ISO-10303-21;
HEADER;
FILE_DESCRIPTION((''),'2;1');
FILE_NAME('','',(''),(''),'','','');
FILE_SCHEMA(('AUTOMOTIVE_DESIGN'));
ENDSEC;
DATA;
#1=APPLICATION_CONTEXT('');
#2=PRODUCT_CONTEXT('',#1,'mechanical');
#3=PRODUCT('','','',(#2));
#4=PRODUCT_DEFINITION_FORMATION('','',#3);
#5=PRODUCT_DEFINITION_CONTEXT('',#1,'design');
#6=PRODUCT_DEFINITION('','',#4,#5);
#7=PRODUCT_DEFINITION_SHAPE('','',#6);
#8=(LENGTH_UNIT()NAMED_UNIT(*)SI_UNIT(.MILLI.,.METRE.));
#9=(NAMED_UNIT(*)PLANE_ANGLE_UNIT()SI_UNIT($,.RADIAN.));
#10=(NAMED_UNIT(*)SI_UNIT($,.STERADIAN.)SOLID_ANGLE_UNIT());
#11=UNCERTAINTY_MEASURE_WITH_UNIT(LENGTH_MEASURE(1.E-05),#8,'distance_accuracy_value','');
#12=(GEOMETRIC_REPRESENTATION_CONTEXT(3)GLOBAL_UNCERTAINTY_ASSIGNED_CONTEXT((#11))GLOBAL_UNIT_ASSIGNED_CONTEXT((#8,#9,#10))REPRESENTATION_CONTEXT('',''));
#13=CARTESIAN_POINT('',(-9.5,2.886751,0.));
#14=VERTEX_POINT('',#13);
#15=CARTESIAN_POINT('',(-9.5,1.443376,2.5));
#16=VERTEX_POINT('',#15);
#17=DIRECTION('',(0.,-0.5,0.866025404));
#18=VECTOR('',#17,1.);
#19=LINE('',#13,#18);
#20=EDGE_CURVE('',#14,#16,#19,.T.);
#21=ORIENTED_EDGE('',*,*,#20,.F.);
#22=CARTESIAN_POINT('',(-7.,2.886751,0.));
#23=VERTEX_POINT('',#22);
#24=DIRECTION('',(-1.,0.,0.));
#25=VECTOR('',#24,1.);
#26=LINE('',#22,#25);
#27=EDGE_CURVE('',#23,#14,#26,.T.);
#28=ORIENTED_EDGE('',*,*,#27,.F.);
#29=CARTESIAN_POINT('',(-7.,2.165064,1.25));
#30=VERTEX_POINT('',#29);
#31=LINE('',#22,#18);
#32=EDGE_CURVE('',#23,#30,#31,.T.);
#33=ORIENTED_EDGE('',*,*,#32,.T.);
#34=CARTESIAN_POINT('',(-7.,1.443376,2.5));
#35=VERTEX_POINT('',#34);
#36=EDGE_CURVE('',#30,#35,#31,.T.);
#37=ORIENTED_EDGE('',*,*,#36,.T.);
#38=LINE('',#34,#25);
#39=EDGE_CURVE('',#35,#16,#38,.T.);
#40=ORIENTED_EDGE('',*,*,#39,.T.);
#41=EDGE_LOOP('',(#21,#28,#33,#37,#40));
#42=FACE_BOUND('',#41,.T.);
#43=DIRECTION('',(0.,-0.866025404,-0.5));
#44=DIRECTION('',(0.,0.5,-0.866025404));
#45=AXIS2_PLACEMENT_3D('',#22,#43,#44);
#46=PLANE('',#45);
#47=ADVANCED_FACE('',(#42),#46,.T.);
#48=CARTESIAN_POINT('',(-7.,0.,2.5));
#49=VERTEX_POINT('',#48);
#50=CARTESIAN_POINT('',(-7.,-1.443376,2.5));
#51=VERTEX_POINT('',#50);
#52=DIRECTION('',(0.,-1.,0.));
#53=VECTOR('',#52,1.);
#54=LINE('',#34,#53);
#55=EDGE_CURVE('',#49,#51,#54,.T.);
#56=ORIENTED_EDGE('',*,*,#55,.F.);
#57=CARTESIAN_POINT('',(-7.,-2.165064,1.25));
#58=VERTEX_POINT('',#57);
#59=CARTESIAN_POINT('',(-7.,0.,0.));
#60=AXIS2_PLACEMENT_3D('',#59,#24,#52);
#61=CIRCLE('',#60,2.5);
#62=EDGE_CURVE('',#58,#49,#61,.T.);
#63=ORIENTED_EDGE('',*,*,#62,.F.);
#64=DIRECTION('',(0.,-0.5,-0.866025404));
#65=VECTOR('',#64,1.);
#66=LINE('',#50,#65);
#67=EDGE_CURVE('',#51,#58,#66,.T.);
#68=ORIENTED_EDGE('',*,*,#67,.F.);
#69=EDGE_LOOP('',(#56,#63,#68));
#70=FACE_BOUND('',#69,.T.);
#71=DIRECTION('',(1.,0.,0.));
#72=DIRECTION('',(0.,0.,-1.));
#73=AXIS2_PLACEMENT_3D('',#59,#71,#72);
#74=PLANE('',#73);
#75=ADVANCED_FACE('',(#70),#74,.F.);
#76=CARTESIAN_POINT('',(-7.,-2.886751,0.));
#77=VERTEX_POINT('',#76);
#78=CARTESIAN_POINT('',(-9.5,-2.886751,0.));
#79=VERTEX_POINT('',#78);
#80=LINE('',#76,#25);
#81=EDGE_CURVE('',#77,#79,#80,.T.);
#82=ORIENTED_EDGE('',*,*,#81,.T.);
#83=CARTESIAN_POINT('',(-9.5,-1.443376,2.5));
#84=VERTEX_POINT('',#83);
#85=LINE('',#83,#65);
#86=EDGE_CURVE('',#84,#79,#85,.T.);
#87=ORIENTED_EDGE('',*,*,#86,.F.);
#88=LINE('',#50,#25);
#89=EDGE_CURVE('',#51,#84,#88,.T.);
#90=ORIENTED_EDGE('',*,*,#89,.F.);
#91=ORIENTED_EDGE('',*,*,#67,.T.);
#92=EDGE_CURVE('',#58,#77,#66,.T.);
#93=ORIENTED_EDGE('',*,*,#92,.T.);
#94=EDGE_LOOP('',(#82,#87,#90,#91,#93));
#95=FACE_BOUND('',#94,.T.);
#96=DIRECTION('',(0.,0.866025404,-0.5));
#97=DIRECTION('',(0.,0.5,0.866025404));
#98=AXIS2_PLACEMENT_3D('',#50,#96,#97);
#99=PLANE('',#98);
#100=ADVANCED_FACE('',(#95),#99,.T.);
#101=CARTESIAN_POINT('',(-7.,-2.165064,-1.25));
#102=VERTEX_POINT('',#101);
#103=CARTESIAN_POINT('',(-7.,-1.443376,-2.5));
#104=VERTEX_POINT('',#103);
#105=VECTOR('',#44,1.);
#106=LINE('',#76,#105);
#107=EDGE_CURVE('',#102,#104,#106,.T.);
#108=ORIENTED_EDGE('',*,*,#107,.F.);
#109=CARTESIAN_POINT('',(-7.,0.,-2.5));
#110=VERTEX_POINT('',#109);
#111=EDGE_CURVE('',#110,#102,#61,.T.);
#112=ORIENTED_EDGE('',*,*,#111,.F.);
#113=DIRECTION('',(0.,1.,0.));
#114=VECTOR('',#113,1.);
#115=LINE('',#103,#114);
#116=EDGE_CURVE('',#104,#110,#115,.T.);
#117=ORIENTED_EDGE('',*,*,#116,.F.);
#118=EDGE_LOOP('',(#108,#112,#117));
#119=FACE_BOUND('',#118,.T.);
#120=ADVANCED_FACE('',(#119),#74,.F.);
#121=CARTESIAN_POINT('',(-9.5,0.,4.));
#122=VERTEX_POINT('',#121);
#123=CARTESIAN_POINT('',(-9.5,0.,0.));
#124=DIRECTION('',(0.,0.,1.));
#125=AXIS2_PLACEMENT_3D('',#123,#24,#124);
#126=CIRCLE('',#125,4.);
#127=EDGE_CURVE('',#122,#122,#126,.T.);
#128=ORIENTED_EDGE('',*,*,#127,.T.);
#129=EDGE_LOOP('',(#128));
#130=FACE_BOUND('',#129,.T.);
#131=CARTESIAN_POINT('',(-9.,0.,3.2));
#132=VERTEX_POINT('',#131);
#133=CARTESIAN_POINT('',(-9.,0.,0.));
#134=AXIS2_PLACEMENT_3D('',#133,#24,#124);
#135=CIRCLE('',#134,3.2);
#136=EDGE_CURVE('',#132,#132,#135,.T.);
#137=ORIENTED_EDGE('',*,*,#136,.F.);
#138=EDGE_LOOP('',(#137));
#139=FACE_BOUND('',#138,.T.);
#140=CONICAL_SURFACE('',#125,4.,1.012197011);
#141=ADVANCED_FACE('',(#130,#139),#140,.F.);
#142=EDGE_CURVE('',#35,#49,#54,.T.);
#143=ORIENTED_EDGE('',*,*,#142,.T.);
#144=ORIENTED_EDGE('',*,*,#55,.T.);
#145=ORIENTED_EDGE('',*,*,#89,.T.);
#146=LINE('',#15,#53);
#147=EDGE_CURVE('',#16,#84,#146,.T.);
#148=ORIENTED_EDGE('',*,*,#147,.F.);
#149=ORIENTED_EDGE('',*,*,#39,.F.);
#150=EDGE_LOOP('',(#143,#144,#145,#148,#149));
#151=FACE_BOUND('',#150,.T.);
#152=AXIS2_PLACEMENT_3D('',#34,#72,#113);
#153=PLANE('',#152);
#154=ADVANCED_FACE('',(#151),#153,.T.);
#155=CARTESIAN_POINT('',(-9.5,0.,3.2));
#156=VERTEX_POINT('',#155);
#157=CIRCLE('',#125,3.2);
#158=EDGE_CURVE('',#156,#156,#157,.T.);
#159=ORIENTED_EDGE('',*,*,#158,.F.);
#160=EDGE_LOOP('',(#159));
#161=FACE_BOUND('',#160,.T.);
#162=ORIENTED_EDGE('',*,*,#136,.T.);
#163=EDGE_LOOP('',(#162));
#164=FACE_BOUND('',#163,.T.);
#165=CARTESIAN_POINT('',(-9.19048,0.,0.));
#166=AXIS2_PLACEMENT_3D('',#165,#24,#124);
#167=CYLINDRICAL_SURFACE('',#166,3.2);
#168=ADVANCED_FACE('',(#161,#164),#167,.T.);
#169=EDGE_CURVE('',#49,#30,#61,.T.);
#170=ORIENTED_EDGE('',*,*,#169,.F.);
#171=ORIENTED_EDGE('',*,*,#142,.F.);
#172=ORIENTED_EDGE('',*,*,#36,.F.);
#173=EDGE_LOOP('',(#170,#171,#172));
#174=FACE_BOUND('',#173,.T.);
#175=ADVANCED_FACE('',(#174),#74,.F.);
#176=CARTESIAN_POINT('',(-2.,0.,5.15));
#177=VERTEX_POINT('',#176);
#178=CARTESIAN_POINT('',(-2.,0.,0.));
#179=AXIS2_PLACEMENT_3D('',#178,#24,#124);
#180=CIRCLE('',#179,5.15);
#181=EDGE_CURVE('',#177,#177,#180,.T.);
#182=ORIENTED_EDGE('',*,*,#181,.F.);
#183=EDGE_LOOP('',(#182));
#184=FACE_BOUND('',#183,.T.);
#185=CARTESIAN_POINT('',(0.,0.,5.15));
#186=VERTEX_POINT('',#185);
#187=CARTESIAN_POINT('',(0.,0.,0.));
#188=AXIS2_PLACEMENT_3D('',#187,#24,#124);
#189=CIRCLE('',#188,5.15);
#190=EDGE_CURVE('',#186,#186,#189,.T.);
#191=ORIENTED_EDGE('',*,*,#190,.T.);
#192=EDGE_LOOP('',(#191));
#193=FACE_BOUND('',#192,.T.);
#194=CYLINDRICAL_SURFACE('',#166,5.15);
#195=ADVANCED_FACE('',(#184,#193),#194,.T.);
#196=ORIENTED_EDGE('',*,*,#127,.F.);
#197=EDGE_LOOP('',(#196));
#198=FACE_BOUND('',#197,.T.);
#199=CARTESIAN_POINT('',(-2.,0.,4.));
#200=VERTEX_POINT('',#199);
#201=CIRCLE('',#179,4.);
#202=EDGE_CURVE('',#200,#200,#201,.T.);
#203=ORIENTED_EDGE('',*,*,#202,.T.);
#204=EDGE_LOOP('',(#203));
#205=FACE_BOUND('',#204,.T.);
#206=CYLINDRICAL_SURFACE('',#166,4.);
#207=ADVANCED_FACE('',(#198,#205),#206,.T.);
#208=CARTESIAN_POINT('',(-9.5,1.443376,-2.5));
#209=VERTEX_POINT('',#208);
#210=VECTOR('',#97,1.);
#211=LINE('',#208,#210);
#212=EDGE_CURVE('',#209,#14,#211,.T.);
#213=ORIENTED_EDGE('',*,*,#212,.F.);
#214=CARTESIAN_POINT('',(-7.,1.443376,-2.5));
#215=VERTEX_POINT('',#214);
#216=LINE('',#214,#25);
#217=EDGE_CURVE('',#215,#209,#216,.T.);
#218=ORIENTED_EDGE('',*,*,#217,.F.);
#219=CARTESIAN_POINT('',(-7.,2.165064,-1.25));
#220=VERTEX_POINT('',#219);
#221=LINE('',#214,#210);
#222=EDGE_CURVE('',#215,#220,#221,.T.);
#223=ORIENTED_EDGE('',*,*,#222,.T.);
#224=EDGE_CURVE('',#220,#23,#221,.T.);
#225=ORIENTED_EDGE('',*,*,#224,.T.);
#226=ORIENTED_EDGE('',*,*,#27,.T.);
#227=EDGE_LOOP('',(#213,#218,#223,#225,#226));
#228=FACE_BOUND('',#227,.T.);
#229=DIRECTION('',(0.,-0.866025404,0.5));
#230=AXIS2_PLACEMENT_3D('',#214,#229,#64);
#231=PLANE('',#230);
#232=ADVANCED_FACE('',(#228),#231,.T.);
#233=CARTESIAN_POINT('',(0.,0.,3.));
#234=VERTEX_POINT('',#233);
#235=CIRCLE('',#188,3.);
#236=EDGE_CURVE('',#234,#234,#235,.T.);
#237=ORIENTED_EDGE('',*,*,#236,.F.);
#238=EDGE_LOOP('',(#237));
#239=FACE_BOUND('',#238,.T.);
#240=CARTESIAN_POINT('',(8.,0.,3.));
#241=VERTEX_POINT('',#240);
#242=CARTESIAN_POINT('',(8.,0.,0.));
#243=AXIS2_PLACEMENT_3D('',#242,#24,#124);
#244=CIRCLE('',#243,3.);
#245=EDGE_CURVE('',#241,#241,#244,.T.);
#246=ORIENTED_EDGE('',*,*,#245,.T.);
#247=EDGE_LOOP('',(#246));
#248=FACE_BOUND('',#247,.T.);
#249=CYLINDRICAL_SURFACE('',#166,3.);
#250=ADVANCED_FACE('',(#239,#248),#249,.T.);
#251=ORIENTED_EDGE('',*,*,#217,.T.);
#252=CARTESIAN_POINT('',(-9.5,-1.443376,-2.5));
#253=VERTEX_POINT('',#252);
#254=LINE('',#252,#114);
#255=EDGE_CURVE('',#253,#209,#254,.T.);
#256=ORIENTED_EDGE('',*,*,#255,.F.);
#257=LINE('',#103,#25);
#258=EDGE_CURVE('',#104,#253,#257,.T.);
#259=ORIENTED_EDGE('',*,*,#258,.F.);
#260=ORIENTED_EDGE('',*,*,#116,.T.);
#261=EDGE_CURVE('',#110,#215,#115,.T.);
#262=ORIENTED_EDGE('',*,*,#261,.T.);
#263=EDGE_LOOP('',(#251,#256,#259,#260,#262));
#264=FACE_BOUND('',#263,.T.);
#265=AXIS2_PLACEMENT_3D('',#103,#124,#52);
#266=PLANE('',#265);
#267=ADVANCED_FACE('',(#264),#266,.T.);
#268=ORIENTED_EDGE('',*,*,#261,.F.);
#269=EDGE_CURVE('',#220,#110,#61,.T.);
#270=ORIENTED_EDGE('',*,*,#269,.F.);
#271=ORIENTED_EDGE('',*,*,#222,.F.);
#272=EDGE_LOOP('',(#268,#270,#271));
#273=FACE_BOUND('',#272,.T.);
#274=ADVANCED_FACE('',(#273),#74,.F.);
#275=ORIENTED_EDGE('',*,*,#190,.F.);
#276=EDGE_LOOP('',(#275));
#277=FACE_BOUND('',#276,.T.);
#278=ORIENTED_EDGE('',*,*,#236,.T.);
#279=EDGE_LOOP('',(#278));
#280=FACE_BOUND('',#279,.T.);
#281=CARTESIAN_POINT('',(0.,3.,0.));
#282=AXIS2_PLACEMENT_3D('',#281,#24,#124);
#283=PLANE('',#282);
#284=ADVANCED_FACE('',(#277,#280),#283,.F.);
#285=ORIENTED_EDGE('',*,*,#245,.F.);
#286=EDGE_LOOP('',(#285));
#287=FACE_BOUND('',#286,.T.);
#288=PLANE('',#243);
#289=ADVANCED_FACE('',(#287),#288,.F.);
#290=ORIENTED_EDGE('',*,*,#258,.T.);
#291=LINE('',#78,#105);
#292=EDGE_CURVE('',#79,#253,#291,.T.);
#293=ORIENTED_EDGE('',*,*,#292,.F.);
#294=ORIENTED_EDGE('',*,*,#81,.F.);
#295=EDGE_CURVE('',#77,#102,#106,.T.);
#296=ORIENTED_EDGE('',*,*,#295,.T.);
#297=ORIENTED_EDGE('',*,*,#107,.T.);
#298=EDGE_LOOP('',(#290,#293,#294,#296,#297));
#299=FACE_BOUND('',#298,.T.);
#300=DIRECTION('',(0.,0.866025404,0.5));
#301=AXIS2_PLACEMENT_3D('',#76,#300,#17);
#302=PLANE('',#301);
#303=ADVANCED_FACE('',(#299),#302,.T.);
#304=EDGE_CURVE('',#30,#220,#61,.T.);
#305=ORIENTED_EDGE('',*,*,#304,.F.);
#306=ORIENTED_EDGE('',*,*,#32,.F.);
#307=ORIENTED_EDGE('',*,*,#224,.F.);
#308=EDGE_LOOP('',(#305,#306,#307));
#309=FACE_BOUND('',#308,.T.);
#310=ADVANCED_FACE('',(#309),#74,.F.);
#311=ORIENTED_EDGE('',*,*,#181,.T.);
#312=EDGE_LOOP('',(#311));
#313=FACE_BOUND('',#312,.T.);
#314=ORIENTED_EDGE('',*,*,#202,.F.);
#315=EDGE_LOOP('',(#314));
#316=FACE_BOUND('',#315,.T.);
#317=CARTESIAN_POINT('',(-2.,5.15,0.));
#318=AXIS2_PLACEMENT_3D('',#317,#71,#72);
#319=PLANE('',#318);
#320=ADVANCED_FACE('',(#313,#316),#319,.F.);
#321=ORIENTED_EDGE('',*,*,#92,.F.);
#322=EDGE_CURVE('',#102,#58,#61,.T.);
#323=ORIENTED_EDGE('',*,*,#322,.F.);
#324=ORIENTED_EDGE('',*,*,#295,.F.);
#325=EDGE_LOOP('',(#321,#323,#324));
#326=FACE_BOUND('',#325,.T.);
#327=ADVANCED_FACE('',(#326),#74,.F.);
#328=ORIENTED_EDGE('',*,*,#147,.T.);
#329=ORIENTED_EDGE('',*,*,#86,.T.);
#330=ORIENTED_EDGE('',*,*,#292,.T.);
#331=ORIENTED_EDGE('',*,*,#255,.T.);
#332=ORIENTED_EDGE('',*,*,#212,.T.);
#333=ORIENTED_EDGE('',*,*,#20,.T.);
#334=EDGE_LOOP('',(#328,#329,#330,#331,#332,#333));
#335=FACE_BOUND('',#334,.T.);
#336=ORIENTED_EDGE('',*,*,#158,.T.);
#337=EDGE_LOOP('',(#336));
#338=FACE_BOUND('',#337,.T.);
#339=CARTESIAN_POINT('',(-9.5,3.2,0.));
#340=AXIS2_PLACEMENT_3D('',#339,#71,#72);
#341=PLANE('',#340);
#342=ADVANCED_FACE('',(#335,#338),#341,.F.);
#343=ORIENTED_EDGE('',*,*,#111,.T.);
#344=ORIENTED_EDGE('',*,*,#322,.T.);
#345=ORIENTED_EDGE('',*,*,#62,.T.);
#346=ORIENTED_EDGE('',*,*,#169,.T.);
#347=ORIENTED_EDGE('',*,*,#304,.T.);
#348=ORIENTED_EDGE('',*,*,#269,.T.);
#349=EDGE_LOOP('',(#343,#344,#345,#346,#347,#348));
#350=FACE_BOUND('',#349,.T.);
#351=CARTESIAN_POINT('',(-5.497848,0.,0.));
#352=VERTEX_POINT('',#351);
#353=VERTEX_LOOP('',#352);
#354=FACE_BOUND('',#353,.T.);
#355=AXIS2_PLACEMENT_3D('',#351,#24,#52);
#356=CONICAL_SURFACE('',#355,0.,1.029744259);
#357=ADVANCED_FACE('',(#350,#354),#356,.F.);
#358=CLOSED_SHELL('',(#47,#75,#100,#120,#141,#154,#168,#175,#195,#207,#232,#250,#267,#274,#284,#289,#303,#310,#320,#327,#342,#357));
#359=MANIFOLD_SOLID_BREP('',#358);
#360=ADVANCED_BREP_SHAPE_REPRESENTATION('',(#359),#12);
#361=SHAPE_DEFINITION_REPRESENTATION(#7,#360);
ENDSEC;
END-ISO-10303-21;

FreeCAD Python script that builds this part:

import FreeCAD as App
import Part
import Sketcher

V = App.Vector
Q = App.Units.Quantity

doc = App.newDocument("Part")
body = doc.addObject("PartDesign::Body", "Body")

sketch1 = doc.addObject("Sketcher::SketchObject", "Sketch")
body.addObject(sketch1)
sketch1.AttachmentSupport = (doc.XY_Plane, [""])
sketch1.MapMode = "FlatFace"
sketch1.addGeometry([
    Part.LineSegment(V(-9.5, 0, 0), V(8, 0, 0)),
    Part.LineSegment(V(8, 0, 0), V(8, 3, 0)),
    Part.LineSegment(V(8, 3, 0), V(0, 3, 0)),
    Part.LineSegment(V(0, 3, 0), V(0, 5.2, 0)),
    Part.LineSegment(V(0, 5.2, 0), V(-2, 5.2, 0)),
    Part.LineSegment(V(-2, 5.2, 0), V(-2, 4, 0)),
    Part.LineSegment(V(-2, 4, 0), V(-9.5, 4, 0)),
    Part.LineSegment(V(-9.5, 4, 0), V(-9, 3.2, 0)),
    Part.LineSegment(V(-9, 3.2, 0), V(-9.5, 3.2, 0)),
    Part.LineSegment(V(-9.5, 3.2, 0), V(-9.5, 0, 0)),
], False)
sketch1.addConstraint([
    Sketcher.Constraint("Coincident", 0, 2, 1, 1),
    Sketcher.Constraint("Coincident", 1, 2, 2, 1),
    Sketcher.Constraint("Coincident", 2, 2, 3, 1),
    Sketcher.Constraint("Coincident", 3, 2, 4, 1),
    Sketcher.Constraint("Coincident", 4, 2, 5, 1),
    Sketcher.Constraint("Coincident", 5, 2, 6, 1),
    Sketcher.Constraint("Coincident", 6, 2, 7, 1),
    Sketcher.Constraint("Coincident", 7, 2, 8, 1),
    Sketcher.Constraint("Coincident", 8, 2, 9, 1),
    Sketcher.Constraint("Coincident", 9, 2, 0, 1),
    Sketcher.Constraint("Horizontal", 0),
    Sketcher.Constraint("Vertical", 1),
    Sketcher.Constraint("Horizontal", 2),
    Sketcher.Constraint("Vertical", 3),
    Sketcher.Constraint("Horizontal", 4),
    Sketcher.Constraint("Vertical", 5),
    Sketcher.Constraint("Horizontal", 6),
    Sketcher.Constraint("Horizontal", 8),
    Sketcher.Constraint("Vertical", 9),
    Sketcher.Constraint("PointOnObject", 0, 2, -1),
    Sketcher.Constraint("PointOnObject", 2, 2, -2),
    Sketcher.Constraint("Vertical", 6, 2, 8, 2),
    Sketcher.Constraint("DistanceX", 2, 2, 2, 1, Q("8 mm")),
    Sketcher.Constraint("DistanceX", 4, 2, 4, 1, Q("2 mm")),
    Sketcher.Constraint("DistanceY", 1, 1, 1, 2, Q("3 mm")),
    Sketcher.Constraint("DistanceX", 0, 1, 0, 2, Q("17.5 mm")),
    Sketcher.Constraint("DistanceX", 8, 2, 8, 1, Q("0.5 mm")),
    Sketcher.Constraint("DistanceY", 9, 2, 9, 1, Q("3.2 mm")),
    Sketcher.Constraint("DistanceY", -1, 1, 5, 2, Q("4 mm")),
    Sketcher.Constraint("DistanceY", 3, 1, 3, 2, Q("2.15 mm")),
])
revolution = doc.addObject("PartDesign::Revolution", "Revolution")
body.addObject(revolution)
revolution.Profile = sketch1
revolution.ReferenceAxis = (sketch1, ["H_Axis"])
revolution.Angle = 360

sketch2 = doc.addObject("Sketcher::SketchObject", "Sketch001")
body.addObject(sketch2)
sketch2.AttachmentSupport = (doc.XY_Plane, [""])
sketch2.MapMode = "FlatFace"
sketch2.addGeometry([
    Part.LineSegment(V(-7, 2.5, 0), V(-9.5, 2.5, 0)),
    Part.LineSegment(V(-9.5, 2.5, 0), V(-9.5, 0, 0)),
    Part.LineSegment(V(-9.5, 0, 0), V(-5.5, 0, 0)),
    Part.LineSegment(V(-5.5, 0, 0), V(-7, 2.5, 0)),
], False)
sketch2.addConstraint([
    Sketcher.Constraint("Coincident", 0, 2, 1, 1),
    Sketcher.Constraint("Coincident", 1, 2, 2, 1),
    Sketcher.Constraint("Coincident", 2, 2, 3, 1),
    Sketcher.Constraint("Coincident", 3, 2, 0, 1),
    Sketcher.Constraint("Horizontal", 0),
    Sketcher.Constraint("Vertical", 1),
    Sketcher.Constraint("Horizontal", 2),
    Sketcher.Constraint("PointOnObject", 1, 2, -1),
    Sketcher.Constraint("Equal", 0, 1),
    Sketcher.Constraint("Angle", 3, Q("121 deg")),
    Sketcher.Constraint("DistanceX", 0, 2, 0, 1, Q("2.5 mm")),
    Sketcher.Constraint("DistanceX", 3, 2, -1, 1, Q("7 mm")),
])
groove = doc.addObject("PartDesign::Groove", "Groove")
body.addObject(groove)
groove.Profile = sketch2
groove.ReferenceAxis = (sketch2, ["H_Axis"])
groove.Angle = 360

sketch3 = doc.addObject("Sketcher::SketchObject", "Sketch002")
body.addObject(sketch3)
sketch3.AttachmentSupport = (doc.YZ_Plane, [""])
sketch3.MapMode = "FlatFace"
sketch3.AttachmentOffset = App.Placement(V(0, 0, -9.5), App.Rotation())
sketch3.addGeometry([
    Part.LineSegment(V(2.9, 0, 0), V(1.4, 2.5, 0)),
    Part.LineSegment(V(1.4, 2.5, 0), V(-1.4, 2.5, 0)),
    Part.LineSegment(V(-1.4, 2.5, 0), V(-2.9, 0, 0)),
    Part.LineSegment(V(-2.9, 0, 0), V(-1.4, -2.5, 0)),
    Part.LineSegment(V(-1.4, -2.5, 0), V(1.4, -2.5, 0)),
    Part.LineSegment(V(1.4, -2.5, 0), V(2.9, 0, 0)),
], False)
sketch3.addConstraint([
    Sketcher.Constraint("Coincident", 0, 2, 1, 1),
    Sketcher.Constraint("Coincident", 1, 2, 2, 1),
    Sketcher.Constraint("Coincident", 2, 2, 3, 1),
    Sketcher.Constraint("Coincident", 3, 2, 4, 1),
    Sketcher.Constraint("Coincident", 4, 2, 5, 1),
    Sketcher.Constraint("Coincident", 5, 2, 0, 1),
    Sketcher.Constraint("Horizontal", 1),
    Sketcher.Constraint("Horizontal", 4),
    Sketcher.Constraint("Symmetric", 0, 2, 3, 2, -1, 1),
    Sketcher.Constraint("Symmetric", 2, 2, 5, 2, -1, 1),
    Sketcher.Constraint("PointOnObject", 2, 2, -1),
    Sketcher.Constraint("Parallel", 2, 5),
    Sketcher.Constraint("Vertical", 1, 2, 3, 2),
    Sketcher.Constraint("Angle", 0, Q("120 deg")),
    Sketcher.Constraint("DistanceY", 3, 2, 1, 2, Q("5 mm")),
    Sketcher.Constraint("DistanceX", 1, 2, 1, 1, Q("2.886751 mm")),
])
pocket1 = doc.addObject("PartDesign::Pocket", "Pocket")
body.addObject(pocket1)
pocket1.Profile = sketch3
pocket1.Length = 2.5
pocket1.Reversed = True

doc.recompute()
